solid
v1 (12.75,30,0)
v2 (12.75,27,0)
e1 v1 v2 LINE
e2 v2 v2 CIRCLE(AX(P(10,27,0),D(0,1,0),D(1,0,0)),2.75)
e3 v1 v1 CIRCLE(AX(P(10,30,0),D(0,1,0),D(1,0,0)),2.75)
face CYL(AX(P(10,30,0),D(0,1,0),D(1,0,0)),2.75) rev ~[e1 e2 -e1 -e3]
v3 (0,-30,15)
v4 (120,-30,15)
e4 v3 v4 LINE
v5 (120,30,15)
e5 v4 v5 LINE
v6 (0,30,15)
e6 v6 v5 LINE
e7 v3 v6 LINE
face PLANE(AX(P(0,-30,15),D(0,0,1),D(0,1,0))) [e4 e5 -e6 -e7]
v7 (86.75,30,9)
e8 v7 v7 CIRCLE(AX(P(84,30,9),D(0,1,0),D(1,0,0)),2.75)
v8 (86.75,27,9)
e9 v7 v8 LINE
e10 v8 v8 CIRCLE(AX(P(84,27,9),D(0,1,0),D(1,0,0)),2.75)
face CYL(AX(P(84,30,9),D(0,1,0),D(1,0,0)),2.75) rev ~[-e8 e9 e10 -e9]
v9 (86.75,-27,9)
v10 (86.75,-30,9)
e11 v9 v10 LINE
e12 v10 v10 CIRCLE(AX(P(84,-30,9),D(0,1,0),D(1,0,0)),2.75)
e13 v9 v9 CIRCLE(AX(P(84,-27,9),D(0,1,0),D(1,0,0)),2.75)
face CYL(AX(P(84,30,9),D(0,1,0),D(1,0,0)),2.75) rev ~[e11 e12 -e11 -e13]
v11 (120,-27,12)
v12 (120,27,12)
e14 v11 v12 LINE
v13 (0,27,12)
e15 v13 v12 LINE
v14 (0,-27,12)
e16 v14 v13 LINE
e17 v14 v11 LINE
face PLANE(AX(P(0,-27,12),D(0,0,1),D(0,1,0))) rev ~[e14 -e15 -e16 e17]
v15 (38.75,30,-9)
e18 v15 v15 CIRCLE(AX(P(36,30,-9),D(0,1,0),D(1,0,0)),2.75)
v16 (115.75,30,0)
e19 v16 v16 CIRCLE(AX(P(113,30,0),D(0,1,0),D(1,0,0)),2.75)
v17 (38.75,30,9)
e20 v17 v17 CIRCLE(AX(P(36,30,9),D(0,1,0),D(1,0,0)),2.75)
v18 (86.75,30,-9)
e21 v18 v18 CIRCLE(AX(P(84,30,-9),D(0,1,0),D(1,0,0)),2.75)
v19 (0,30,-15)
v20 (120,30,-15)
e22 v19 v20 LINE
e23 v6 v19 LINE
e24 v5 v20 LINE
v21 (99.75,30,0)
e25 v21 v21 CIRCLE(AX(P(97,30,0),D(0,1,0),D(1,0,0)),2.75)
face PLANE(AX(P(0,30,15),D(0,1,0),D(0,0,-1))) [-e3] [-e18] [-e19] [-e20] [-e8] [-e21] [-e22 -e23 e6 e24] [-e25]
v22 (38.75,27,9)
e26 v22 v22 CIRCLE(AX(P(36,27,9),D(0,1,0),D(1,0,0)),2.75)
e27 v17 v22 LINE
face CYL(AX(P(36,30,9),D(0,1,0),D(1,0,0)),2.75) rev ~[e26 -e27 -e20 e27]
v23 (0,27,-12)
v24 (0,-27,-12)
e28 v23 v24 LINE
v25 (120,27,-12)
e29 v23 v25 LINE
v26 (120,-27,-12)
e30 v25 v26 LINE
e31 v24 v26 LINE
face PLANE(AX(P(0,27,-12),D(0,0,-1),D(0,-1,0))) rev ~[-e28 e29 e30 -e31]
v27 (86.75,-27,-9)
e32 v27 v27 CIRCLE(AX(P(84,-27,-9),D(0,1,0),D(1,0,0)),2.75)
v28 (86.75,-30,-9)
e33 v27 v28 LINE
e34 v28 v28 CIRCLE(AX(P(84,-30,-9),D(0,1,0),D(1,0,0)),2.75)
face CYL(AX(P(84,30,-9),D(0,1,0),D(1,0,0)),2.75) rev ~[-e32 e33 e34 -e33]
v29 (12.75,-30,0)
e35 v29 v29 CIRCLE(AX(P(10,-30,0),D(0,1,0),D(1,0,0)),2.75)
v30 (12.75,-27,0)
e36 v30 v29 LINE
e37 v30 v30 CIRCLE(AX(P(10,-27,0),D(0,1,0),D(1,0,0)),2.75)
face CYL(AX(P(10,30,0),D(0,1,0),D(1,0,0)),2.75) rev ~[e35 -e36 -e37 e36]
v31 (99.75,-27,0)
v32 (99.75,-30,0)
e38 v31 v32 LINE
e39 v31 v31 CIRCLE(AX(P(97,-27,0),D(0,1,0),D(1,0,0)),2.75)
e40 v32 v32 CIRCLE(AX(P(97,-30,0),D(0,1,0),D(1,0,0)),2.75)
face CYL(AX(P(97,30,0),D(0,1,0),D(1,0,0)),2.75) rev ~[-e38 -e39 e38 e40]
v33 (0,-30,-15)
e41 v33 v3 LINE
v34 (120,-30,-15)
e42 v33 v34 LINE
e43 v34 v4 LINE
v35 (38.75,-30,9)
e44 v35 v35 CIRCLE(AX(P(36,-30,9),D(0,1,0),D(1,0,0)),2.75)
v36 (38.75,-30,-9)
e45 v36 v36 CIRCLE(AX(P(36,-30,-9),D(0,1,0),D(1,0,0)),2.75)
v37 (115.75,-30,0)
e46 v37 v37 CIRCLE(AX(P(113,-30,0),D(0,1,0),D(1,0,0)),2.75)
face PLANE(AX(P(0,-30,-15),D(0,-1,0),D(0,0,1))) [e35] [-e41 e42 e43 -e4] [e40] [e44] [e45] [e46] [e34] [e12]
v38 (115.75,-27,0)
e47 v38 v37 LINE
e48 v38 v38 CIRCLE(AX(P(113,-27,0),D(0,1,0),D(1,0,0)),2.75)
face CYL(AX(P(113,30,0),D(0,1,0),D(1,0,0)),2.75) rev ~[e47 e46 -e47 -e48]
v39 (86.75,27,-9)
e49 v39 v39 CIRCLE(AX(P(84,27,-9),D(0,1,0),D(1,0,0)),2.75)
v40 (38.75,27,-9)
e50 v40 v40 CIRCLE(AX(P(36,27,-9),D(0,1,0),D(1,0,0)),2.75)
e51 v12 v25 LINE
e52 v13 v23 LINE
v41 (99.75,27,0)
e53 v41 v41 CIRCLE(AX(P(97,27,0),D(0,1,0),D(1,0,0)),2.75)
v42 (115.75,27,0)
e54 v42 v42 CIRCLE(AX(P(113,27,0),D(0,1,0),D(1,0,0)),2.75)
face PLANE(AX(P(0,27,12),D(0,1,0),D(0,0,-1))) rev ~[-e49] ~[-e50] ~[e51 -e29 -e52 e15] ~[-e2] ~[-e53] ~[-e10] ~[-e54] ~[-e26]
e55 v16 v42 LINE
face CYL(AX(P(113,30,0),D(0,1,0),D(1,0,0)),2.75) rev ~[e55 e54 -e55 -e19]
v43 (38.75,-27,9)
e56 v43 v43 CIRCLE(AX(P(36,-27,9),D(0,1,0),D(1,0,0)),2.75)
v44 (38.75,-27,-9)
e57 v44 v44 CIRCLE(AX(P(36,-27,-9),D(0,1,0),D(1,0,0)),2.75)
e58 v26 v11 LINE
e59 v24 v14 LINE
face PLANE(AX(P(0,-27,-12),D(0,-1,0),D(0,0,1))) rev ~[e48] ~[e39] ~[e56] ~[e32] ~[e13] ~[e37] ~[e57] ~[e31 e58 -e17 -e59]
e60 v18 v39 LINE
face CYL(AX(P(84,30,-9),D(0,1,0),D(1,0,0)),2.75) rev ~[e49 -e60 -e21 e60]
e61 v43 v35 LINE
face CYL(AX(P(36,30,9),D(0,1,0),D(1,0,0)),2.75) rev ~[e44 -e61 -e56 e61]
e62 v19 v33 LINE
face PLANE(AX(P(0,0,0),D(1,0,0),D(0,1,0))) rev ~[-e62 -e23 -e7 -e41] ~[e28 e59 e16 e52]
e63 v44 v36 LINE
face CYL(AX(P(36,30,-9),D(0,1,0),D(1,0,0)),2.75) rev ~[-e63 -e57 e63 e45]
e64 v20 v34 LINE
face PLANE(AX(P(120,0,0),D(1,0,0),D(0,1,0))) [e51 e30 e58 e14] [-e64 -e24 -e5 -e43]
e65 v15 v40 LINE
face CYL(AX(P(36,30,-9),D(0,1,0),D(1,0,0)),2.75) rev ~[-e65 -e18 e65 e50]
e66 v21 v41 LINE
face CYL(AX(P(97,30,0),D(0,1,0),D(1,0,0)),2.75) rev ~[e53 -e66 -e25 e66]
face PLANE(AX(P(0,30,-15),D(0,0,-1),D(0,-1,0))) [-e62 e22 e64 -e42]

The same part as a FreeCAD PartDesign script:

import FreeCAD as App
import Part
import Sketcher
from FreeCAD import Vector
Q = App.Units.Quantity

doc = App.newDocument("Part")
body = doc.addObject("PartDesign::Body", "Body")

# Sketch on YZ plane
sketch1 = doc.addObject("Sketcher::SketchObject", "Sketch")
body.addObject(sketch1)
sketch1.AttachmentSupport = (doc.YZ_Plane, [""])
sketch1.MapMode = "FlatFace"
sketch1.addGeometry(Part.LineSegment(Vector(30, 15, 0), Vector(-30, 15, 0)), False)
sketch1.addGeometry(Part.LineSegment(Vector(-30, 15, 0), Vector(-30, -15, 0)), False)
sketch1.addGeometry(Part.LineSegment(Vector(-30, -15, 0), Vector(30, -15, 0)), False)
sketch1.addGeometry(Part.LineSegment(Vector(30, -15, 0), Vector(30, 15, 0)), False)
sketch1.addGeometry(Part.LineSegment(Vector(-27, -12, 0), Vector(-27, 12, 0)), False)
sketch1.addGeometry(Part.LineSegment(Vector(-27, 12, 0), Vector(27, 12, 0)), False)
sketch1.addGeometry(Part.LineSegment(Vector(27, 12, 0), Vector(27, -12, 0)), False)
sketch1.addGeometry(Part.LineSegment(Vector(27, -12, 0), Vector(-27, -12, 0)), False)
sketch1.addConstraint(Sketcher.Constraint("Coincident", 0, 2, 1, 1))
sketch1.addConstraint(Sketcher.Constraint("Coincident", 1, 2, 2, 1))
sketch1.addConstraint(Sketcher.Constraint("Coincident", 2, 2, 3, 1))
sketch1.addConstraint(Sketcher.Constraint("Coincident", 3, 2, 0, 1))
sketch1.addConstraint(Sketcher.Constraint("Coincident", 4, 2, 5, 1))
sketch1.addConstraint(Sketcher.Constraint("Coincident", 5, 2, 6, 1))
sketch1.addConstraint(Sketcher.Constraint("Coincident", 6, 2, 7, 1))
sketch1.addConstraint(Sketcher.Constraint("Coincident", 7, 2, 4, 1))
sketch1.addConstraint(Sketcher.Constraint("Horizontal", 0))
sketch1.addConstraint(Sketcher.Constraint("Vertical", 1))
sketch1.addConstraint(Sketcher.Constraint("Horizontal", 2))
sketch1.addConstraint(Sketcher.Constraint("Vertical", 3))
sketch1.addConstraint(Sketcher.Constraint("Vertical", 4))
sketch1.addConstraint(Sketcher.Constraint("Horizontal", 5))
sketch1.addConstraint(Sketcher.Constraint("Vertical", 6))
sketch1.addConstraint(Sketcher.Constraint("Horizontal", 7))
sketch1.addConstraint(Sketcher.Constraint("Symmetric", 0, 2, 2, 2, -1, 1))
sketch1.addConstraint(Sketcher.Constraint("Symmetric", 4, 2, 6, 2, -1, 1))
sketch1.addConstraint(Sketcher.Constraint("DistanceX", 0, 2, 0, 1, Q("60 mm")))
sketch1.addConstraint(Sketcher.Constraint("DistanceX", 5, 1, 5, 2, Q("54 mm")))
sketch1.addConstraint(Sketcher.Constraint("DistanceY", 1, 2, 1, 1, Q("30 mm")))
sketch1.addConstraint(Sketcher.Constraint("DistanceY", 4, 1, 4, 2, Q("24 mm")))
pad1 = doc.addObject("PartDesign::Pad", "Pad")
body.addObject(pad1)
pad1.Profile = sketch1
pad1.Length = 120

# Sketch on XZ plane
sketch2 = doc.addObject("Sketcher::SketchObject", "Sketch001")
body.addObject(sketch2)
sketch2.AttachmentSupport = (doc.XZ_Plane, [""])
sketch2.MapMode = "FlatFace"
sketch2.AttachmentOffset = App.Placement(Vector(0, 0, -30), App.Rotation())
sketch2.addGeometry(Part.Circle(Vector(36, 9, 0), Vector(0, 0, 1), 2.8), False)
sketch2.addGeometry(Part.Circle(Vector(36, -9, 0), Vector(0, 0, 1), 2.8), False)
sketch2.addGeometry(Part.Circle(Vector(84, 9, 0), Vector(0, 0, 1), 2.8), False)
sketch2.addGeometry(Part.Circle(Vector(84, -9, 0), Vector(0, 0, 1), 2.8), False)
sketch2.addGeometry(Part.Circle(Vector(10, 0, 0), Vector(0, 0, 1), 2.8), False)
sketch2.addGeometry(Part.Circle(Vector(113, 0, 0), Vector(0, 0, 1), 2.8), False)
sketch2.addGeometry(Part.Circle(Vector(97, 0, 0), Vector(0, 0, 1), 2.8), False)
sketch2.addConstraint(Sketcher.Constraint("Equal", 0, 1))
sketch2.addConstraint(Sketcher.Constraint("Equal", 1, 2))
sketch2.addConstraint(Sketcher.Constraint("Equal", 2, 3))
sketch2.addConstraint(Sketcher.Constraint("Equal", 3, 4))
sketch2.addConstraint(Sketcher.Constraint("Equal", 4, 5))
sketch2.addConstraint(Sketcher.Constraint("Equal", 5, 6))
sketch2.addConstraint(Sketcher.Constraint("Symmetric", 0, 3, 1, 3, -1))
sketch2.addConstraint(Sketcher.Constraint("Symmetric", 2, 3, 3, 3, -1))
sketch2.addConstraint(Sketcher.Constraint("PointOnObject", 4, 3, -1))
sketch2.addConstraint(Sketcher.Constraint("PointOnObject", 5, 3, -1))
sketch2.addConstraint(Sketcher.Constraint("PointOnObject", 6, 3, -1))
sketch2.addConstraint(Sketcher.Constraint("Horizontal", 0, 3, 2, 3))
sketch2.addConstraint(Sketcher.Constraint("Diameter", 0, Q("5.5 mm")))
sketch2.addConstraint(Sketcher.Constraint("DistanceX", -1, 1, 0, 3, Q("36 mm")))
sketch2.addConstraint(Sketcher.Constraint("DistanceX", -1, 1, 4, 3, Q("10 mm")))
sketch2.addConstraint(Sketcher.Constraint("DistanceY", 1, 3, 0, 3, Q("18 mm")))
sketch2.addConstraint(Sketcher.Constraint("DistanceX", 0, 3, 2, 3, Q("48 mm")))
sketch2.addConstraint(Sketcher.Constraint("DistanceX", 6, 3, 5, 3, Q("16 mm")))
sketch2.addConstraint(Sketcher.Constraint("DistanceX", -1, 1, 5, 3, Q("113 mm")))
pocket1 = doc.addObject("PartDesign::Pocket", "Pocket")
body.addObject(pocket1)
pocket1.Profile = sketch2
pocket1.Length = 60
pocket1.Reversed = True

doc.recompute()
